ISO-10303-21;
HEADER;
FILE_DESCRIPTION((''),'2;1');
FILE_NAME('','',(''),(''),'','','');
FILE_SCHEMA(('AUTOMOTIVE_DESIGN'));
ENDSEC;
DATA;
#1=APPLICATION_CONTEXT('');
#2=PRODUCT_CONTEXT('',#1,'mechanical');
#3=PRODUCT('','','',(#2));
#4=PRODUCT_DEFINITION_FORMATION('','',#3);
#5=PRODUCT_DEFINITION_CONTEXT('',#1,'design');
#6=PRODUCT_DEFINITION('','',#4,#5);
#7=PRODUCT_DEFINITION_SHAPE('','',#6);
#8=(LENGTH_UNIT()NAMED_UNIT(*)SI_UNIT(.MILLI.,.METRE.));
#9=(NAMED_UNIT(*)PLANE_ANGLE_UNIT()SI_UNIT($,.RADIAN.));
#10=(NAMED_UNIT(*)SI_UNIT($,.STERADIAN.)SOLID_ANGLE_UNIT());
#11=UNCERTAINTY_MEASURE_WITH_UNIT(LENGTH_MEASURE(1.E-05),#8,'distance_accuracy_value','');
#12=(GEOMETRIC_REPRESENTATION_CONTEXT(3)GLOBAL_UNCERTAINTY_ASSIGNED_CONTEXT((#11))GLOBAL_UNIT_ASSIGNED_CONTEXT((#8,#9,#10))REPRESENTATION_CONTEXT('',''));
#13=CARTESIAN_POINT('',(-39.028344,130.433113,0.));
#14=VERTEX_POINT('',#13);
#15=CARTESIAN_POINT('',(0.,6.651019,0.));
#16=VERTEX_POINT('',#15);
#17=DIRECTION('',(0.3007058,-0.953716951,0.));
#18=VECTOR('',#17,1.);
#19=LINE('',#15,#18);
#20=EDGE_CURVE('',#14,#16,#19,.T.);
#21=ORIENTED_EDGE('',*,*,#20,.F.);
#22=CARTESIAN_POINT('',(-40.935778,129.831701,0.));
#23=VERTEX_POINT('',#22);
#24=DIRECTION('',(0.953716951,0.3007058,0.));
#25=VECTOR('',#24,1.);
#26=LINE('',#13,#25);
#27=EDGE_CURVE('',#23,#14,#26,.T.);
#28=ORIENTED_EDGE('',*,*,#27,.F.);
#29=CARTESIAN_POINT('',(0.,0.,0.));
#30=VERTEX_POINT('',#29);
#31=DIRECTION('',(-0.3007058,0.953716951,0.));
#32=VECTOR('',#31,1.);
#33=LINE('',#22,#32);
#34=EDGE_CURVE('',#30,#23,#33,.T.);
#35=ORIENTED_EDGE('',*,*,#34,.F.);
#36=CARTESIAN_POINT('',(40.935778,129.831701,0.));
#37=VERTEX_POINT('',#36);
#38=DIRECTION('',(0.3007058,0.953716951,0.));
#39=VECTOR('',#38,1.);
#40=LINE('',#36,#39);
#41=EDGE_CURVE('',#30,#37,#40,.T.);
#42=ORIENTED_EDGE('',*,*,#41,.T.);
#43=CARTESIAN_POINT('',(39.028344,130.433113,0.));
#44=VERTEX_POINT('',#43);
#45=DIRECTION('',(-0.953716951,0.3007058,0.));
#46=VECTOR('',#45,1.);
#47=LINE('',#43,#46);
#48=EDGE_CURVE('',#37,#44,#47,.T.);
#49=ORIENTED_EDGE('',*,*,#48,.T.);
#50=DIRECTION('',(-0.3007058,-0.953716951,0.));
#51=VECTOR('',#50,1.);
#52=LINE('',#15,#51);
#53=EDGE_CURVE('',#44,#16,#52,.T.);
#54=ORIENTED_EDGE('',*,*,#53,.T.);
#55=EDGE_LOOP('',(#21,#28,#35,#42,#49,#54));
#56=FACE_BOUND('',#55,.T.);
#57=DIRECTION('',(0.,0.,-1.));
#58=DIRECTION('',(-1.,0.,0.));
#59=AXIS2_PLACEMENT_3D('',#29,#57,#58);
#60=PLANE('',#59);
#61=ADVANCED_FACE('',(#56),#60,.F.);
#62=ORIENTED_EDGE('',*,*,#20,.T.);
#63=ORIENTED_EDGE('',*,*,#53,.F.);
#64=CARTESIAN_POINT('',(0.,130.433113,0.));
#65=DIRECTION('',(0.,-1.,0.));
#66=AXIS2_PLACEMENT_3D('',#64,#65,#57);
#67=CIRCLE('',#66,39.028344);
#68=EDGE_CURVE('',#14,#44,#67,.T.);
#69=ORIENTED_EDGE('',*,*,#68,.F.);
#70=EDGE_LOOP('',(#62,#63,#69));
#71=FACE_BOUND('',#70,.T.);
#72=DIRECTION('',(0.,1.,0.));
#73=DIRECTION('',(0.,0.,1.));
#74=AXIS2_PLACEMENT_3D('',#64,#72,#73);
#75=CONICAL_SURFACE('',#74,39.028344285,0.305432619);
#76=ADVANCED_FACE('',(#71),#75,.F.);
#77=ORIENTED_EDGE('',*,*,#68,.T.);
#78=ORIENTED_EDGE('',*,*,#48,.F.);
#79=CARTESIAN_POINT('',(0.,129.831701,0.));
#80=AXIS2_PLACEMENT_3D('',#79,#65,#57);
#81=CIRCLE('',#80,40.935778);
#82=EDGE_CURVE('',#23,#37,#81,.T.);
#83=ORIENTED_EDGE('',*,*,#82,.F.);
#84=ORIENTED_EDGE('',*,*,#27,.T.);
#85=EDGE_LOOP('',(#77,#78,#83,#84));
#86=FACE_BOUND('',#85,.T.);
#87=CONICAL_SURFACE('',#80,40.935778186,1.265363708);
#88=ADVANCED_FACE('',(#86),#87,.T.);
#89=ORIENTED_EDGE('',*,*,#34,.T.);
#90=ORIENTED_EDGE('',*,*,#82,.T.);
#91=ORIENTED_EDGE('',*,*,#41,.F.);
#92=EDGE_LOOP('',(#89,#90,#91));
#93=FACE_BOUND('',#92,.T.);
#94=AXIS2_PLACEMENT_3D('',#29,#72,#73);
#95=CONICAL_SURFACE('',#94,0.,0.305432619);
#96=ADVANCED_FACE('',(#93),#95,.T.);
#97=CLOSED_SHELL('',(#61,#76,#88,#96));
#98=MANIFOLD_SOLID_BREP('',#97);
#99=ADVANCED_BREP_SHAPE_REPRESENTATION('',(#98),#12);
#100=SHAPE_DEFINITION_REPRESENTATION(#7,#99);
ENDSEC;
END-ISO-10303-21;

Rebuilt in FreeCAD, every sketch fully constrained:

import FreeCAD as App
import Part
import Sketcher
from FreeCAD import Vector
Q = App.Units.Quantity

doc = App.newDocument("Part")
body = doc.addObject("PartDesign::Body", "Body")

# Sketch on XY plane
sketch1 = body.newObject("Sketcher::SketchObject", "Sketch")
sketch1.AttachmentSupport = (doc.getObject("XY_Plane"), [""])
sketch1.MapMode = "FlatFace"
sketch1.addGeometry(Part.LineSegment(Vector(0, 6.7, 0), Vector(0, 0, 0)), False)
sketch1.addGeometry(Part.LineSegment(Vector(0, 0, 0), Vector(40.9, 129.8, 0)), False)
sketch1.addGeometry(Part.LineSegment(Vector(40.9, 129.8, 0), Vector(39, 130.4, 0)), False)
sketch1.addGeometry(Part.LineSegment(Vector(39, 130.4, 0), Vector(0, 6.7, 0)), False)
sketch1.addConstraint(Sketcher.Constraint("Coincident", 0, 2, 1, 1))
sketch1.addConstraint(Sketcher.Constraint("Coincident", 1, 2, 2, 1))
sketch1.addConstraint(Sketcher.Constraint("Coincident", 2, 2, 3, 1))
sketch1.addConstraint(Sketcher.Constraint("Coincident", 3, 2, 0, 1))
sketch1.addConstraint(Sketcher.Constraint("Vertical", 0))
sketch1.addConstraint(Sketcher.Constraint("Coincident", 0, 2, -1, 1))
sketch1.addConstraint(Sketcher.Constraint("Perpendicular", 1, 2))
sketch1.addConstraint(Sketcher.Constraint("Perpendicular", 2, 3))
sketch1.addConstraint(Sketcher.Constraint("Distance", 2, 2.0))
sketch1.addConstraint(Sketcher.Constraint("Angle", 1, Q("72.5 deg")))
sketch1.addConstraint(Sketcher.Constraint("DistanceY", -1, 1, 1, 2, 129.831701))
revolution = body.newObject("PartDesign::Revolution", "Revolution")
revolution.Profile = sketch1
revolution.ReferenceAxis = (sketch1, ["V_Axis"])
revolution.Angle = 180

doc.recompute()
